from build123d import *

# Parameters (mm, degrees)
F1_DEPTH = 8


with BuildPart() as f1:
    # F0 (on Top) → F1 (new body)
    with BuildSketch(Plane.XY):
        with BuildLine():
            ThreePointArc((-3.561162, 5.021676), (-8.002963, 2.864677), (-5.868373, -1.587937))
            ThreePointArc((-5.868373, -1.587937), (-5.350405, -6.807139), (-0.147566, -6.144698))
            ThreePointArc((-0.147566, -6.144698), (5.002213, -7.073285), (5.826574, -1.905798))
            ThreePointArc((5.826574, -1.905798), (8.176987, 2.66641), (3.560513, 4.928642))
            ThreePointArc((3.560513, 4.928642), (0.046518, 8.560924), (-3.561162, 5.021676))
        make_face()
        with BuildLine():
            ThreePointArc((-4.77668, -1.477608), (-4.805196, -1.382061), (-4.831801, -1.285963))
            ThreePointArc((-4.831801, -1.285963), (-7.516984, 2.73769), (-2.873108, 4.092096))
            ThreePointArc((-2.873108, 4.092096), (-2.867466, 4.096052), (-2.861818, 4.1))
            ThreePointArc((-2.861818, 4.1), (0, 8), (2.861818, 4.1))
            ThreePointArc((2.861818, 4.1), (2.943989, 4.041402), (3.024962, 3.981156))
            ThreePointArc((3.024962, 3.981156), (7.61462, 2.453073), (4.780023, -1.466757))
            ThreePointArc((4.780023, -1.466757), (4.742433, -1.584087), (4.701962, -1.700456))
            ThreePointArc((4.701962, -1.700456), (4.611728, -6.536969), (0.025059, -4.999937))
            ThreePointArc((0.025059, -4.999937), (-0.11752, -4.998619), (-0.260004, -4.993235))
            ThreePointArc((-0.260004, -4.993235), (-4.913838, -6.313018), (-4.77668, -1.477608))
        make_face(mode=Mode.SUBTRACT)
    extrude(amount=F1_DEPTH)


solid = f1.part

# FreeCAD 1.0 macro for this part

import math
import FreeCAD as App
import Part
import Sketcher

V = App.Vector
Q = App.Units.Quantity

doc = App.newDocument("Part")
body = doc.addObject("PartDesign::Body", "Body")

sketch1 = body.newObject("Sketcher::SketchObject", "Sketch")
sketch1.AttachmentSupport = (doc.getObject("XY_Plane"), [""])
sketch1.MapMode = "FlatFace"
sketch1.addGeometry(Part.ArcOfCircle(Part.Circle(V(-4.698, 1.711, 0), V(0, 0, 1), 3.5), math.radians(71), math.radians(250)), False)
sketch1.addGeometry(Part.ArcOfCircle(Part.Circle(V(-3.071, -3.946, 0), V(0, 0, 1), 3.658), math.radians(140), math.radians(323)), False)
sketch1.addGeometry(Part.ArcOfCircle(Part.Circle(V(2.882, -4.086, 0), V(0, 0, 1), 3.663), math.radians(-146), math.radians(37)), False)
sketch1.addGeometry(Part.ArcOfCircle(Part.Circle(V(4.759, 1.533, 0), V(0, 0, 1), 3.601), math.radians(-73), math.radians(109)), False)
sketch1.addGeometry(Part.ArcOfCircle(Part.Circle(V(0, 5, 0), V(0, 0, 1), 3.561), math.radians(-1), math.radians(180)), False)
sketch1.addGeometry(Part.ArcOfCircle(Part.Circle(V(-3.071, -3.946, 0), V(0, 0, 1), 3), math.radians(125), math.radians(340)), False)
sketch1.addGeometry(Part.ArcOfCircle(Part.Circle(V(-0.001, 0, 0), V(0, 0, 1), 4.999), math.radians(-165.1), math.radians(-162.81)), False)
sketch1.addGeometry(Part.ArcOfCircle(Part.Circle(V(-4.698, 1.711, 0), V(0, 0, 1), 3), math.radians(53), math.radians(267)), False)
sketch1.addGeometry(Part.ArcOfCircle(Part.Circle(V(-0.143, 0.204, 0), V(0, 0, 1), 4.751), math.radians(124.91), math.radians(125.08)), False)
sketch1.addGeometry(Part.ArcOfCircle(Part.Circle(V(0, 5, 0), V(0, 0, 1), 3), math.radians(-17), math.radians(197)), False)
sketch1.addGeometry(Part.ArcOfCircle(Part.Circle(V(0, 0, 0), V(0, 0, 1), 4.999), math.radians(52.77), math.radians(55.08)), False)
sketch1.addGeometry(Part.ArcOfCircle(Part.Circle(V(4.759, 1.533, 0), V(0, 0, 1), 3), math.radians(-90), math.radians(125)), False)
sketch1.addGeometry(Part.ArcOfCircle(Part.Circle(V(0.002, -0.001, 0), V(0, 0, 1), 4.998), math.radians(-19.88), math.radians(-17.06)), False)
sketch1.addGeometry(Part.ArcOfCircle(Part.Circle(V(2.882, -4.086, 0), V(0, 0, 1), 3), math.radians(-162), math.radians(53)), False)
sketch1.addGeometry(Part.ArcOfCircle(Part.Circle(V(0, -0.001, 0), V(0, 0, 1), 4.999), math.radians(-92.98), math.radians(-89.71)), False)
sketch1.addConstraint(Sketcher.Constraint("Coincident", 0, 2, 1, 1))
sketch1.addConstraint(Sketcher.Constraint("Coincident", 1, 2, 2, 1))
sketch1.addConstraint(Sketcher.Constraint("Coincident", 2, 2, 3, 1))
sketch1.addConstraint(Sketcher.Constraint("Coincident", 3, 2, 4, 1))
sketch1.addConstraint(Sketcher.Constraint("Coincident", 4, 2, 0, 1))
sketch1.addConstraint(Sketcher.Constraint("Coincident", 5, 1, 6, 2))
sketch1.addConstraint(Sketcher.Constraint("Coincident", 6, 1, 7, 2))
sketch1.addConstraint(Sketcher.Constraint("Coincident", 7, 1, 8, 2))
sketch1.addConstraint(Sketcher.Constraint("Coincident", 8, 1, 9, 2))
sketch1.addConstraint(Sketcher.Constraint("Coincident", 9, 1, 10, 2))
sketch1.addConstraint(Sketcher.Constraint("Coincident", 10, 1, 11, 2))
sketch1.addConstraint(Sketcher.Constraint("Coincident", 11, 1, 12, 2))
sketch1.addConstraint(Sketcher.Constraint("Coincident", 12, 1, 13, 2))
sketch1.addConstraint(Sketcher.Constraint("Coincident", 13, 1, 14, 2))
sketch1.addConstraint(Sketcher.Constraint("Coincident", 14, 1, 5, 2))
sketch1.addConstraint(Sketcher.Constraint("Coincident", 5, 3, 1, 3))
sketch1.addConstraint(Sketcher.Constraint("Coincident", 7, 3, 0, 3))
sketch1.addConstraint(Sketcher.Constraint("Coincident", 9, 3, 4, 3))
sketch1.addConstraint(Sketcher.Constraint("Coincident", 11, 3, 3, 3))
sketch1.addConstraint(Sketcher.Constraint("Coincident", 13, 3, 2, 3))
sketch1.addConstraint(Sketcher.Constraint("Equal", 5, 7))
sketch1.addConstraint(Sketcher.Constraint("Equal", 7, 9))
sketch1.addConstraint(Sketcher.Constraint("Equal", 9, 11))
sketch1.addConstraint(Sketcher.Constraint("Equal", 11, 13))
sketch1.addConstraint(Sketcher.Constraint("Symmetric", 8, 1, 9, 1, -2))
sketch1.addConstraint(Sketcher.Constraint("Radius", 5, Q("3 mm")))
sketch1.addConstraint(Sketcher.Constraint("DistanceY", -1, 1, 4, 3, Q("5 mm")))
sketch1.addConstraint(Sketcher.Constraint("DistanceY", -1, 1, 8, 1, Q("4.1 mm")))
sketch1.addConstraint(Sketcher.Constraint("Radius", 12, Q("4.998102 mm")))
sketch1.addConstraint(Sketcher.Constraint("Radius", 0, Q("3.500409 mm")))
sketch1.addConstraint(Sketcher.Constraint("Radius", 2, Q("3.66335 mm")))
sketch1.addConstraint(Sketcher.Constraint("Radius", 14, Q("4.998782 mm")))
sketch1.addConstraint(Sketcher.Constraint("Radius", 1, Q("3.658307 mm")))
sketch1.addConstraint(Sketcher.Constraint("Radius", 3, Q("3.600823 mm")))
sketch1.addConstraint(Sketcher.Constraint("Radius", 4, Q("3.561228 mm")))
sketch1.addConstraint(Sketcher.Constraint("Radius", 6, Q("4.999133 mm")))
sketch1.addConstraint(Sketcher.Constraint("Radius", 8, Q("4.750978 mm")))
sketch1.addConstraint(Sketcher.Constraint("Radius", 10, Q("4.999447 mm")))
sketch1.addConstraint(Sketcher.Constraint("DistanceY", 2, 3, 12, 3, Q("4.085002 mm")))
sketch1.addConstraint(Sketcher.Constraint("DistanceY", 0, 2, 8, 3, Q("1.791998 mm")))
sketch1.addConstraint(Sketcher.Constraint("DistanceX", -1, 1, 12, 3, Q("0.0018 mm")))
sketch1.addConstraint(Sketcher.Constraint("DistanceY", 2, 2, -1, 1, Q("1.905798 mm")))
sketch1.addConstraint(Sketcher.Constraint("DistanceX", 6, 1, -1, 1, Q("4.831801 mm")))
sketch1.addConstraint(Sketcher.Constraint("DistanceY", 6, 3, 11, 3, Q("1.533399 mm")))
sketch1.addConstraint(Sketcher.Constraint("DistanceX", 8, 3, 14, 3, Q("0.142699 mm")))
sketch1.addConstraint(Sketcher.Constraint("DistanceY", 5, 3, 0, 2, Q("2.357699 mm")))
sketch1.addConstraint(Sketcher.Constraint("DistanceY", 12, 1, 11, 1, Q("0.233699 mm")))
sketch1.addConstraint(Sketcher.Constraint("DistanceY", 13, 1, 1, 3, Q("1.054301 mm")))
sketch1.addConstraint(Sketcher.Constraint("DistanceY", 13, 1, 14, 1, Q("0.006702 mm")))
sketch1.addConstraint(Sketcher.Constraint("DistanceX", 1, 3, -1, 1, Q("3.071149 mm")))
sketch1.addConstraint(Sketcher.Constraint("DistanceX", -1, 1, 2, 3, Q("2.88233 mm")))
sketch1.addConstraint(Sketcher.Constraint("DistanceY", -1, 1, 3, 3, Q("1.533171 mm")))
sketch1.addConstraint(Sketcher.Constraint("DistanceX", 5, 1, -1, 1, Q("4.77668 mm")))
sketch1.addConstraint(Sketcher.Constraint("DistanceY", 6, 3, 10, 3, Q("0.000681 mm")))
pad1 = body.newObject("PartDesign::Pad", "Pad")
pad1.Profile = sketch1
pad1.Length = 8

doc.recompute()
